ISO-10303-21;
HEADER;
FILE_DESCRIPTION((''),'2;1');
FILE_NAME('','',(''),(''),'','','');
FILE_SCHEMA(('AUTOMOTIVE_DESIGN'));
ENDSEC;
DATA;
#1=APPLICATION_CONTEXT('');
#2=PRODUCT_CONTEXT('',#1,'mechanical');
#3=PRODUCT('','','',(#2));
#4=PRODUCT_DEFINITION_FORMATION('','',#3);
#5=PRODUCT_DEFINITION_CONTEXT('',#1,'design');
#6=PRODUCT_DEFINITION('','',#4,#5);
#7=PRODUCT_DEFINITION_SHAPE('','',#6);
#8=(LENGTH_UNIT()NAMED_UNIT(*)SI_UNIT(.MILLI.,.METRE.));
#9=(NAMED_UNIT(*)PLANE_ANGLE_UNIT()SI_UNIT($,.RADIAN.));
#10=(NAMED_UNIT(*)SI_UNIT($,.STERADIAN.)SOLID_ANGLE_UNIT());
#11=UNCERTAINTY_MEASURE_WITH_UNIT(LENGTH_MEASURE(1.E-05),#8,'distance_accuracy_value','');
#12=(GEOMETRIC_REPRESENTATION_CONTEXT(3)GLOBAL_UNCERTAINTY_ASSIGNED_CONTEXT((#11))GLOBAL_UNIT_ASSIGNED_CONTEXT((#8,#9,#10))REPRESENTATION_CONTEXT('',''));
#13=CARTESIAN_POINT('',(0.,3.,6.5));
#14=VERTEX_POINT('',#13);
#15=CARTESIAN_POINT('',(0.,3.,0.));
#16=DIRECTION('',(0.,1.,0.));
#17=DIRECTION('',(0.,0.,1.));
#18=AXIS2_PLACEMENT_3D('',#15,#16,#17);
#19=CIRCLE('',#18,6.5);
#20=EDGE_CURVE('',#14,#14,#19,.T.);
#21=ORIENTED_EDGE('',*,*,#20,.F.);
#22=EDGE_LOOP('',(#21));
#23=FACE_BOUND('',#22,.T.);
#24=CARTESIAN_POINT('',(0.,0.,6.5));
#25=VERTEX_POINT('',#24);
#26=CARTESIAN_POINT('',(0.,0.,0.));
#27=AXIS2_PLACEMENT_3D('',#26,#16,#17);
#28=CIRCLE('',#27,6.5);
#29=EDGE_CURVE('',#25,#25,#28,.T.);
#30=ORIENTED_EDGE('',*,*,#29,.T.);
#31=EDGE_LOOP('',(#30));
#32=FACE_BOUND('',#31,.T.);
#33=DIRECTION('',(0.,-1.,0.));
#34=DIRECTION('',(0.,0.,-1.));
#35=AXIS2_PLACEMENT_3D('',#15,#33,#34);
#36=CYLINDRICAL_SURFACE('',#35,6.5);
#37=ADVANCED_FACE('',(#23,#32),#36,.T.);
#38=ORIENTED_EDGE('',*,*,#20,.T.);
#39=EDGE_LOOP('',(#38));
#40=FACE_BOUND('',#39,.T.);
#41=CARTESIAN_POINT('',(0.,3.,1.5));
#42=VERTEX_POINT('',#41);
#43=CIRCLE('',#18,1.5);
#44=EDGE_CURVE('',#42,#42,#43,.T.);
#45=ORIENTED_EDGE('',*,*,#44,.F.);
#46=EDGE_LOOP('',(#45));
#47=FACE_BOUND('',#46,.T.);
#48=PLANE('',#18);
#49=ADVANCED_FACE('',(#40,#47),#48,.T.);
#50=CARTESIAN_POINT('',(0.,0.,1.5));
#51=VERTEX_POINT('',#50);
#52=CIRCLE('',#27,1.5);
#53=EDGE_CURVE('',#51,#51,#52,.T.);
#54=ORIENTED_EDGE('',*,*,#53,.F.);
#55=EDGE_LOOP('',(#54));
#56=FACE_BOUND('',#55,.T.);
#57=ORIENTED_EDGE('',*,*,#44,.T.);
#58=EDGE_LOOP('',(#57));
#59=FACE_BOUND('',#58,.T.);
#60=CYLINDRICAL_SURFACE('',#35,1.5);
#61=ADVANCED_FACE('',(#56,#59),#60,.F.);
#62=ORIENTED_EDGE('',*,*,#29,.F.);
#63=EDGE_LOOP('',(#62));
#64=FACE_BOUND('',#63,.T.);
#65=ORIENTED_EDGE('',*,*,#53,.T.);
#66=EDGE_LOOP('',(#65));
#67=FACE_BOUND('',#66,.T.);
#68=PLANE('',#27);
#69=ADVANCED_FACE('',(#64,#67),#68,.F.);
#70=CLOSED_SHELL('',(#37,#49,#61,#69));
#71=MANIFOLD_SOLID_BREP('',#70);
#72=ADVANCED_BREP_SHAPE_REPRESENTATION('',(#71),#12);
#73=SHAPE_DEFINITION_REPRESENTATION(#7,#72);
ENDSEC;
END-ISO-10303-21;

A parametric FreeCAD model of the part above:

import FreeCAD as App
import Part
import Sketcher

V = App.Vector

doc = App.newDocument("Part")
body = doc.addObject("PartDesign::Body", "Body")

# Sketch on XZ plane
sketch1 = body.newObject("Sketcher::SketchObject", "Sketch")
sketch1.AttachmentSupport = (doc.getObject("XZ_Plane"), [""])
sketch1.MapMode = "FlatFace"
sketch1.addGeometry([
    Part.Circle(V(0, 0, 0), V(0, 0, 1), 6.5),
    Part.Circle(V(0, 0, 0), V(0, 0, 1), 1.5),
], False)
sketch1.addConstraint([
    Sketcher.Constraint("Coincident", 0, 3, -1, 1),
    Sketcher.Constraint("Coincident", 1, 3, -1, 1),
    Sketcher.Constraint("Diameter", 0, 13.0),
    Sketcher.Constraint("Diameter", 1, 3.0),
])
pad1 = body.newObject("PartDesign::Pad", "Pad")
pad1.Profile = sketch1
pad1.Length = 3
pad1.Reversed = True

doc.recompute()
